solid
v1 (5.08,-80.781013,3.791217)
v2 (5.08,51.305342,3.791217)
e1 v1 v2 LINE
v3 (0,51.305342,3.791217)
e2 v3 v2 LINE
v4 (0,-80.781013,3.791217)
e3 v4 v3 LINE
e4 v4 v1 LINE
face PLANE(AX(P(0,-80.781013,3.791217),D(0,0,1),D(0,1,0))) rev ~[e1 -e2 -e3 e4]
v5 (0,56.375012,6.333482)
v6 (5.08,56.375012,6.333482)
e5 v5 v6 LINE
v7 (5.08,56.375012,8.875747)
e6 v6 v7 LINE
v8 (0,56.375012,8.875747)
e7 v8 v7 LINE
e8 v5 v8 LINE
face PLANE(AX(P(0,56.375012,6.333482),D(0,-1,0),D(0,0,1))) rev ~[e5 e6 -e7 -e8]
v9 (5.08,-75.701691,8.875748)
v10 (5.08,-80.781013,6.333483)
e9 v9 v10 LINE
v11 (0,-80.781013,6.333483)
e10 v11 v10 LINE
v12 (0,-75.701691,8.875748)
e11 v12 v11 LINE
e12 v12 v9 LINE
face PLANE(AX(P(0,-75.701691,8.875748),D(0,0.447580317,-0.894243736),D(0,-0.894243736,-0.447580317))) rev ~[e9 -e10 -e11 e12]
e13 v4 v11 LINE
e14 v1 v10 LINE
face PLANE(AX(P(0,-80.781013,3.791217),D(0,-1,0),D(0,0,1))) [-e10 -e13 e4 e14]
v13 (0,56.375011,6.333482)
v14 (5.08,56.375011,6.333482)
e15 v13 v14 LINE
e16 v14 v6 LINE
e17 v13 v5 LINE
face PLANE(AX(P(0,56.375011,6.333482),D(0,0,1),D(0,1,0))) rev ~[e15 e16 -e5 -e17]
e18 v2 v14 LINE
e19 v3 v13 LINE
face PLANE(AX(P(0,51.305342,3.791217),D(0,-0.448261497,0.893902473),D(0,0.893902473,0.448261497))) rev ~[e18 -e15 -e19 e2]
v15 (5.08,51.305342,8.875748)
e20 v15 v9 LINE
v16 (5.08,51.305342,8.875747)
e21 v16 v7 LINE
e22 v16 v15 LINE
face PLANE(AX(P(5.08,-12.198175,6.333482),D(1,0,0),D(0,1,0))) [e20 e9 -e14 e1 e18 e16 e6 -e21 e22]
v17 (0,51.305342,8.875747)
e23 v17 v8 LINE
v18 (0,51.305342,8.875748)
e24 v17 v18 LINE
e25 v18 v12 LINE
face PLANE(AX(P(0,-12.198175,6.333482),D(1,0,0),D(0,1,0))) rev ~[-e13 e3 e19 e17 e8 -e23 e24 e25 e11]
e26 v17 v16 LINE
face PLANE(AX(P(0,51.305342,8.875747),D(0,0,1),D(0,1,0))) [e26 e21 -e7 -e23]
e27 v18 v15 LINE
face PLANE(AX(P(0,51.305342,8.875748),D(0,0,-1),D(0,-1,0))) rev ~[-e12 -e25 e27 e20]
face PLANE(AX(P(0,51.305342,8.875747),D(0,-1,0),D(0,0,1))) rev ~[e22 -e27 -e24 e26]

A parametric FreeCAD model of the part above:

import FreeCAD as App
import Part
import Sketcher

V = App.Vector

doc = App.newDocument("Part")
params = doc.addObject("Spreadsheet::Sheet", "Params")
for row, (alias, value) in enumerate([
    ("pad1_length", "0.2 in"),
], start=1):
    params.set(f"A{row}", alias)
    params.set(f"B{row}", "=" + value)
    params.setAlias(f"B{row}", alias)

body = doc.addObject("PartDesign::Body", "Body")

sketch1 = body.newObject("Sketcher::SketchObject", "Sketch")
sketch1.AttachmentSupport = (doc.getObject("YZ_Plane"), [""])
sketch1.MapMode = "FlatFace"
sketch1.addGeometry(Part.LineSegment(V(51.305342, 8.875748, 0), V(51.305342, 8.875747, 0)), False)
sketch1.addGeometry(Part.LineSegment(V(51.305342, 8.875748, 0), V(-75.701691, 8.875748, 0)), False)
sketch1.addGeometry(Part.LineSegment(V(-75.701691, 8.875748, 0), V(-80.781013, 6.333483, 0)), False)
sketch1.addGeometry(Part.LineSegment(V(-80.781013, 6.333483, 0), V(-80.781013, 3.791217, 0)), False)
sketch1.addGeometry(Part.LineSegment(V(-80.781013, 3.791217, 0), V(51.305342, 3.791217, 0)), False)
sketch1.addGeometry(Part.LineSegment(V(51.305342, 3.791217, 0), V(56.375011, 6.333482, 0)), False)
sketch1.addGeometry(Part.LineSegment(V(56.375012, 6.333482, 0), V(56.375011, 6.333482, 0)), False)
sketch1.addGeometry(Part.LineSegment(V(56.375012, 6.333482, 0), V(56.375012, 8.875747, 0)), False)
sketch1.addGeometry(Part.LineSegment(V(56.375012, 8.875747, 0), V(51.305342, 8.875747, 0)), False)
sketch1.addConstraint([
    Sketcher.Constraint("Coincident", 0, 1, 1, 1),
    Sketcher.Constraint("Coincident", 1, 2, 2, 1),
    Sketcher.Constraint("Coincident", 2, 2, 3, 1),
    Sketcher.Constraint("Coincident", 3, 2, 4, 1),
    Sketcher.Constraint("Coincident", 4, 2, 5, 1),
    Sketcher.Constraint("Coincident", 5, 2, 6, 1),
    Sketcher.Constraint("Coincident", 6, 2, 7, 1),
    Sketcher.Constraint("Coincident", 7, 2, 8, 1),
    Sketcher.Constraint("Coincident", 8, 2, 0, 2),
    Sketcher.Constraint("Horizontal", 0),
    Sketcher.Constraint("Horizontal", 1),
    Sketcher.Constraint("Vertical", 3),
    Sketcher.Constraint("Horizontal", 4),
    Sketcher.Constraint("Horizontal", 6),
    Sketcher.Constraint("Vertical", 7),
    Sketcher.Constraint("Horizontal", 8),
    Sketcher.Constraint("DistanceX", 8, 2, 8, 1, 5.06967),
    Sketcher.Constraint("Distance", 2, 5.68002),
    Sketcher.Constraint("Distance", 5, 5.671389),
    Sketcher.Constraint("DistanceX", 1, 2, 1, 1, 127.007033),
    Sketcher.Constraint("DistanceX", 4, 1, 4, 2, 132.086355),
    Sketcher.Constraint("DistanceY", 3, 2, 3, 1, 2.542266),
    Sketcher.Constraint("DistanceY", 7, 1, 7, 2, 2.542265),
    Sketcher.Constraint("DistanceX", 1, 2, -1, 1, 75.701691),
    Sketcher.Constraint("DistanceX", -1, 1, 6, 2, 56.375011),
    Sketcher.Constraint("DistanceY", 3, 2, 1, 2, 5.084531),
    Sketcher.Constraint("DistanceY", -1, 1, 0, 1, 8.875748),
])
pad1 = body.newObject("PartDesign::Pad", "Pad")
pad1.Profile = sketch1
pad1.setExpression("Length", "Params.pad1_length")

doc.recompute()
